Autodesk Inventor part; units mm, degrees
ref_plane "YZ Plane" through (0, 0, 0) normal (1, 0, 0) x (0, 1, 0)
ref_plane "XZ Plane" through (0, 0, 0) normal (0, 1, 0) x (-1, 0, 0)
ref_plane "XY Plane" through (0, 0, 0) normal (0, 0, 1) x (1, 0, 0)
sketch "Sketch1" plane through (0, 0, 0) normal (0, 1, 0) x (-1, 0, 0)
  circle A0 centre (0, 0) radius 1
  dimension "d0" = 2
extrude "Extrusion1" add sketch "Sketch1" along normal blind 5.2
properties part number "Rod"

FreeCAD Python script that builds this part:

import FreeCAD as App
import Part
import Sketcher

V = App.Vector
Q = App.Units.Quantity

doc = App.newDocument("Part")
body = doc.addObject("PartDesign::Body", "Body")

# Sketch on XZ plane
sketch1 = body.newObject("Sketcher::SketchObject", "Sketch")
sketch1.AttachmentSupport = (doc.getObject("XZ_Plane"), [""])
sketch1.MapMode = "FlatFace"
sketch1.addGeometry(Part.Circle(V(0, 0, 0), V(0, 0, 1), 1), False)
sketch1.addConstraint([
    Sketcher.Constraint("Coincident", 0, 3, -1, 1),
    Sketcher.Constraint("Diameter", 0, Q("2 mm")),
])
pad1 = body.newObject("PartDesign::Pad", "Pad")
pad1.Profile = sketch1
pad1.Length = 5.2
pad1.Reversed = True

doc.recompute()
